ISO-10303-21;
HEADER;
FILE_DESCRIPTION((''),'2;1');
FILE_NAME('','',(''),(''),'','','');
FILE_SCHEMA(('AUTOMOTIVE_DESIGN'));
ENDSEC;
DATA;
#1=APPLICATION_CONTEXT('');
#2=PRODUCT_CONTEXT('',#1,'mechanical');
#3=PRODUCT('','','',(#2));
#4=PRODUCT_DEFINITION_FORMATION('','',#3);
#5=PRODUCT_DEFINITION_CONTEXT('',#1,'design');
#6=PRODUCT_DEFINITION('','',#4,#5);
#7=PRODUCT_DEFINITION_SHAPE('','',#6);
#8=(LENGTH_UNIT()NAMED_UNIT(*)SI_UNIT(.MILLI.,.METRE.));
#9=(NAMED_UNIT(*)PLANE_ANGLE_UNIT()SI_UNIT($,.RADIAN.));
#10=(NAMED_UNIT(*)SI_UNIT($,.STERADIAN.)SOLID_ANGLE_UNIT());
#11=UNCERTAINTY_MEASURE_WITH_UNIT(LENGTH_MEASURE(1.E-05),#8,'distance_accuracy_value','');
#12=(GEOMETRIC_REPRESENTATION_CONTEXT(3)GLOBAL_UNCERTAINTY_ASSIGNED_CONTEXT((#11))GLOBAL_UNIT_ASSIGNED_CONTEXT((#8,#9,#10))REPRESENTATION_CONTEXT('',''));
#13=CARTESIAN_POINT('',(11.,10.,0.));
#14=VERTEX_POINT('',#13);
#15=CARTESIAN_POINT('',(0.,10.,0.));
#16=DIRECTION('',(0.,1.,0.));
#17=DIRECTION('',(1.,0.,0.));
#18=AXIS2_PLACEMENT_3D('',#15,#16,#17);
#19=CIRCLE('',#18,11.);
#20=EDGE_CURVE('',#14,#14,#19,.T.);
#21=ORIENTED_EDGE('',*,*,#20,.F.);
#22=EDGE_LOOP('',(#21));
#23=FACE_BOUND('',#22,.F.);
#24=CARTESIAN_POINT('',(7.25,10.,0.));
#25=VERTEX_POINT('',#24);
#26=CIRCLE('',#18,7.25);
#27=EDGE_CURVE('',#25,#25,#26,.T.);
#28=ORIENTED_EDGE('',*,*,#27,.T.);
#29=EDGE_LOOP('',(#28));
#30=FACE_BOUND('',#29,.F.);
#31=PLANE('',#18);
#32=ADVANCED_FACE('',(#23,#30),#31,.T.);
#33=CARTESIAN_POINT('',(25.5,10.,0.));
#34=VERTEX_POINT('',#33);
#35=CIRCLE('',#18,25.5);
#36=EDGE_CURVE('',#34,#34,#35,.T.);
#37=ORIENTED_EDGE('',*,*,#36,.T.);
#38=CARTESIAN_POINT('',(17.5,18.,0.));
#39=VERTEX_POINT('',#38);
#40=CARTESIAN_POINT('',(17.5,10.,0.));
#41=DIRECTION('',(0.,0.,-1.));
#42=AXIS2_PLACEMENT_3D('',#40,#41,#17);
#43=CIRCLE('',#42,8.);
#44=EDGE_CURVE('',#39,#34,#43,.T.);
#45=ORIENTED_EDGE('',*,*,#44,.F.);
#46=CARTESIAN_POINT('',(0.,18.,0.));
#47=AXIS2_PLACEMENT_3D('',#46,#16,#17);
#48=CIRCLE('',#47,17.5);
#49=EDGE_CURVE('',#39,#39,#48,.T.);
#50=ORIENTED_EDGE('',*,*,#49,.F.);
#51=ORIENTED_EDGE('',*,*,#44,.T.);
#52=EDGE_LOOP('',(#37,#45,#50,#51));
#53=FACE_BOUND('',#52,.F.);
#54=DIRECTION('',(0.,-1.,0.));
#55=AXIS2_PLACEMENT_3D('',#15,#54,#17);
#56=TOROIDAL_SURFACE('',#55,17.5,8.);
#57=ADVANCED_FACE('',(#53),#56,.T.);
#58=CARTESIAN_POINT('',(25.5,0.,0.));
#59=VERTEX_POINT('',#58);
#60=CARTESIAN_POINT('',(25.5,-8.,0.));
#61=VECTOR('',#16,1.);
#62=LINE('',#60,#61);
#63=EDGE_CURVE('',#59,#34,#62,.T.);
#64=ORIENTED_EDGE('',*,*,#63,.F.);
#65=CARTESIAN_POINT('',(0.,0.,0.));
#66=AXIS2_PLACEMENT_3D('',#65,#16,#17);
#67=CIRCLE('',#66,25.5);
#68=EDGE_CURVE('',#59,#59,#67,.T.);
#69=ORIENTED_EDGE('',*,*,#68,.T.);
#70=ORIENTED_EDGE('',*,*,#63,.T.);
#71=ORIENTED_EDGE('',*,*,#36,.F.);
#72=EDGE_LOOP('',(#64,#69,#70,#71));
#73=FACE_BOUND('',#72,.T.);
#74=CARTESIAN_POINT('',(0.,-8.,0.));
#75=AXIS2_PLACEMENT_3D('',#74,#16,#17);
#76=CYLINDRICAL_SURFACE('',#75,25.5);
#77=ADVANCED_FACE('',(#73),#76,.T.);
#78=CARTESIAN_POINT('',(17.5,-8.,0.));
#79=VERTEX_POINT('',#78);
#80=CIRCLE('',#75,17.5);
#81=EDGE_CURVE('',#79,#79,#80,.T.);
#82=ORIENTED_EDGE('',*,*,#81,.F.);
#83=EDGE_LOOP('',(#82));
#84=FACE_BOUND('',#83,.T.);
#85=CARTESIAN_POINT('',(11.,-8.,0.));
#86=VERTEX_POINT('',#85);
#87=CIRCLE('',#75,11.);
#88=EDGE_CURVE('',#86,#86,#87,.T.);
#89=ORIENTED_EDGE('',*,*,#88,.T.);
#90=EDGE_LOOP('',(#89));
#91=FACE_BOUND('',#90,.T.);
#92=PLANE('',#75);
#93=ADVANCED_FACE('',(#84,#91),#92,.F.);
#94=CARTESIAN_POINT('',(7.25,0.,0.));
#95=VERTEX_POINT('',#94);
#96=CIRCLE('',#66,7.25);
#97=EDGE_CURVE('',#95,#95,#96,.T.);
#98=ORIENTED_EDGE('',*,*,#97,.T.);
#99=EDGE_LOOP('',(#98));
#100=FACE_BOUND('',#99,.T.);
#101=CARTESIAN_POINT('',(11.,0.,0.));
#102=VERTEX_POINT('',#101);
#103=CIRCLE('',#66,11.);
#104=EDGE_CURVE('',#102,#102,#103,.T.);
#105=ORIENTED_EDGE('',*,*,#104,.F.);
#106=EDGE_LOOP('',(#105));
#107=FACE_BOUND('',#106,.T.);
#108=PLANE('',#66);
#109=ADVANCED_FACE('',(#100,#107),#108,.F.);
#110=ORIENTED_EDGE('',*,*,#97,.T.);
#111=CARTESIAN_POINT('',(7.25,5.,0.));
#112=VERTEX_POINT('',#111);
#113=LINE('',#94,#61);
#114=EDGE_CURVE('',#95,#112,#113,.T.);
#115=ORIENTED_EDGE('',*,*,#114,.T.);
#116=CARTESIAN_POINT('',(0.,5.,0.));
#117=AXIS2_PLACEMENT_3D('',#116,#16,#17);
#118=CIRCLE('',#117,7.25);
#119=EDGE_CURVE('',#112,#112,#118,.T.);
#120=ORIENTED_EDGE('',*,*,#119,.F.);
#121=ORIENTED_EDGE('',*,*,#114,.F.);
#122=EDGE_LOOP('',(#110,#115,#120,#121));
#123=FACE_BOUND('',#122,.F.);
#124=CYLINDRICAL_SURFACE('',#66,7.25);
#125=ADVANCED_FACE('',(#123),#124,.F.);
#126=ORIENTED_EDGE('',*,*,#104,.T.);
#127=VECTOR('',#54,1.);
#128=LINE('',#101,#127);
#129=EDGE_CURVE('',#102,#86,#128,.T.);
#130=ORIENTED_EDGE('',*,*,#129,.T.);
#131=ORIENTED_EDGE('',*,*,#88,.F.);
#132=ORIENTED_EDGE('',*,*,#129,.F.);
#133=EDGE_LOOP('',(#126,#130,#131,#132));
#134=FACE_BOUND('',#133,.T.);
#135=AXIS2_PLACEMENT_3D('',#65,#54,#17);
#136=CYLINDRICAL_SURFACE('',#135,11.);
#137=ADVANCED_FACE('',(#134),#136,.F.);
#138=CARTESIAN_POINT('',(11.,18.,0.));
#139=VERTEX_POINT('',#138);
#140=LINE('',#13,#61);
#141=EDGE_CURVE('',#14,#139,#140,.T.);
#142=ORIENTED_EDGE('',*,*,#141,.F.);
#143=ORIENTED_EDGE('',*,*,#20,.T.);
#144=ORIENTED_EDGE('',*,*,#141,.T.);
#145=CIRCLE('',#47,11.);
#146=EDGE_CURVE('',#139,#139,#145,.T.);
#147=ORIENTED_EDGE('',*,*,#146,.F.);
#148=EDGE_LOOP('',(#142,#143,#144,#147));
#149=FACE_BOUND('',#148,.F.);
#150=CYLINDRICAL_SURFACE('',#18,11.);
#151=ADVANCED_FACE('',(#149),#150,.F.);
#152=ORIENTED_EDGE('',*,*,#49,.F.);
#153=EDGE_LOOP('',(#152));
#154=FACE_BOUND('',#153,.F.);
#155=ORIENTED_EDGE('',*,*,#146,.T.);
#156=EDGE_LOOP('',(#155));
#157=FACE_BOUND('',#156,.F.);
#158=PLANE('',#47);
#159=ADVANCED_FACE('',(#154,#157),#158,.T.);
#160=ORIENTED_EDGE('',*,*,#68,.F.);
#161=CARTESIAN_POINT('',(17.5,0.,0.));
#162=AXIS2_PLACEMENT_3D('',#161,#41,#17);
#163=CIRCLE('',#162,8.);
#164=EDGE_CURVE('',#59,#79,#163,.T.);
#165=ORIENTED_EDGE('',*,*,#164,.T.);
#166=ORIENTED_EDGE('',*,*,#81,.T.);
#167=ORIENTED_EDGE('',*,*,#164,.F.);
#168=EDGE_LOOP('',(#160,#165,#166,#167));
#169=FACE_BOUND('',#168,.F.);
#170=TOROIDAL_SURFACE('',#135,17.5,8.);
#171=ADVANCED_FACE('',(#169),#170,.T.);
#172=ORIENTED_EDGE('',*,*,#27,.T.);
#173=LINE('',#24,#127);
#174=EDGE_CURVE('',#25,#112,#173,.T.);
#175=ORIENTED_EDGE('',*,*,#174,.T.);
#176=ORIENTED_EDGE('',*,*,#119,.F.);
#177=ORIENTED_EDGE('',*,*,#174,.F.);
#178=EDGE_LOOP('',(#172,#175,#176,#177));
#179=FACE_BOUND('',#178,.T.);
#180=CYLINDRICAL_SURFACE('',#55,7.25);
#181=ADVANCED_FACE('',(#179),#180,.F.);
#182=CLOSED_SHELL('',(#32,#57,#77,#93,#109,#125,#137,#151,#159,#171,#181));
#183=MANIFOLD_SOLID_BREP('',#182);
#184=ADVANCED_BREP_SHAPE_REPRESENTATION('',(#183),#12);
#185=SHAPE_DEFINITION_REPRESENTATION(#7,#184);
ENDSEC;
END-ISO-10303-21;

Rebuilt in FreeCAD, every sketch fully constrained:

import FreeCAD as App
import Part
import Sketcher


def edges_at(feature, points):
    """Names of the edges that pass closest to the given points."""
    edges = feature.Shape.Edges
    near = lambda p: min(range(len(edges)), key=lambda i: edges[i].distToShape(Part.Vertex(*p))[0])
    return sorted({f"Edge{near(p) + 1}" for p in points})


def add_polygon(sketch, points):
    """Adds a closed chain of lines whose ends are joined by coincident constraints."""
    first, n = sketch.GeometryCount, len(points)
    for a, b in zip(points, points[1:] + points[:1]):
        sketch.addGeometry(Part.LineSegment(App.Vector(*a, 0), App.Vector(*b, 0)), False)
    for i in range(n):
        sketch.addConstraint(Sketcher.Constraint("Coincident", first + i, 2, first + (i + 1) % n, 1))

doc = App.newDocument("Part")
body = doc.addObject("PartDesign::Body", "Body")

sketch1 = body.newObject("Sketcher::SketchObject", "Sketch")
sketch1.AttachmentSupport = (doc.getObject("XY_Plane"), [""])
sketch1.MapMode = "FlatFace"
add_polygon(sketch1, [(11, 10), (7.25, 10), (7.25, 0), (11, 0), (11, -8), (25.5, -8), (25.5, 18), (11, 18)])
sketch1.addConstraint(Sketcher.Constraint("Horizontal", 0))
sketch1.addConstraint(Sketcher.Constraint("Vertical", 1))
sketch1.addConstraint(Sketcher.Constraint("Horizontal", 2))
sketch1.addConstraint(Sketcher.Constraint("Vertical", 3))
sketch1.addConstraint(Sketcher.Constraint("Horizontal", 4))
sketch1.addConstraint(Sketcher.Constraint("Vertical", 5))
sketch1.addConstraint(Sketcher.Constraint("Horizontal", 6))
sketch1.addConstraint(Sketcher.Constraint("Vertical", 7))
sketch1.addConstraint(Sketcher.Constraint("PointOnObject", 1, 2, -1))
sketch1.addConstraint(Sketcher.Constraint("Vertical", 3, 2, 6, 2))
sketch1.addConstraint(Sketcher.Constraint("Equal", 3, 7))
sketch1.addConstraint(Sketcher.Constraint("DistanceY", 1, 2, 1, 1, 10.0))
sketch1.addConstraint(Sketcher.Constraint("DistanceY", 3, 2, 3, 1, 8.0))
sketch1.addConstraint(Sketcher.Constraint("DistanceX", -1, 1, 2, 2, 11.0))
sketch1.addConstraint(Sketcher.Constraint("DistanceX", -1, 1, 4, 2, 25.5))
sketch1.addConstraint(Sketcher.Constraint("DistanceX", -1, 1, 0, 2, 7.25))
revolution = body.newObject("PartDesign::Revolution", "Revolution")
revolution.Profile = sketch1
revolution.ReferenceAxis = (sketch1, ["V_Axis"])
revolution.Angle = 360
doc.recompute()

fillet = body.newObject("PartDesign::Fillet", "Fillet")
fillet.Base = (revolution, edges_at(revolution, [(-25.5, 18, 0), (-25.5, -8, 0)]))
fillet.Radius = 8

doc.recompute()
